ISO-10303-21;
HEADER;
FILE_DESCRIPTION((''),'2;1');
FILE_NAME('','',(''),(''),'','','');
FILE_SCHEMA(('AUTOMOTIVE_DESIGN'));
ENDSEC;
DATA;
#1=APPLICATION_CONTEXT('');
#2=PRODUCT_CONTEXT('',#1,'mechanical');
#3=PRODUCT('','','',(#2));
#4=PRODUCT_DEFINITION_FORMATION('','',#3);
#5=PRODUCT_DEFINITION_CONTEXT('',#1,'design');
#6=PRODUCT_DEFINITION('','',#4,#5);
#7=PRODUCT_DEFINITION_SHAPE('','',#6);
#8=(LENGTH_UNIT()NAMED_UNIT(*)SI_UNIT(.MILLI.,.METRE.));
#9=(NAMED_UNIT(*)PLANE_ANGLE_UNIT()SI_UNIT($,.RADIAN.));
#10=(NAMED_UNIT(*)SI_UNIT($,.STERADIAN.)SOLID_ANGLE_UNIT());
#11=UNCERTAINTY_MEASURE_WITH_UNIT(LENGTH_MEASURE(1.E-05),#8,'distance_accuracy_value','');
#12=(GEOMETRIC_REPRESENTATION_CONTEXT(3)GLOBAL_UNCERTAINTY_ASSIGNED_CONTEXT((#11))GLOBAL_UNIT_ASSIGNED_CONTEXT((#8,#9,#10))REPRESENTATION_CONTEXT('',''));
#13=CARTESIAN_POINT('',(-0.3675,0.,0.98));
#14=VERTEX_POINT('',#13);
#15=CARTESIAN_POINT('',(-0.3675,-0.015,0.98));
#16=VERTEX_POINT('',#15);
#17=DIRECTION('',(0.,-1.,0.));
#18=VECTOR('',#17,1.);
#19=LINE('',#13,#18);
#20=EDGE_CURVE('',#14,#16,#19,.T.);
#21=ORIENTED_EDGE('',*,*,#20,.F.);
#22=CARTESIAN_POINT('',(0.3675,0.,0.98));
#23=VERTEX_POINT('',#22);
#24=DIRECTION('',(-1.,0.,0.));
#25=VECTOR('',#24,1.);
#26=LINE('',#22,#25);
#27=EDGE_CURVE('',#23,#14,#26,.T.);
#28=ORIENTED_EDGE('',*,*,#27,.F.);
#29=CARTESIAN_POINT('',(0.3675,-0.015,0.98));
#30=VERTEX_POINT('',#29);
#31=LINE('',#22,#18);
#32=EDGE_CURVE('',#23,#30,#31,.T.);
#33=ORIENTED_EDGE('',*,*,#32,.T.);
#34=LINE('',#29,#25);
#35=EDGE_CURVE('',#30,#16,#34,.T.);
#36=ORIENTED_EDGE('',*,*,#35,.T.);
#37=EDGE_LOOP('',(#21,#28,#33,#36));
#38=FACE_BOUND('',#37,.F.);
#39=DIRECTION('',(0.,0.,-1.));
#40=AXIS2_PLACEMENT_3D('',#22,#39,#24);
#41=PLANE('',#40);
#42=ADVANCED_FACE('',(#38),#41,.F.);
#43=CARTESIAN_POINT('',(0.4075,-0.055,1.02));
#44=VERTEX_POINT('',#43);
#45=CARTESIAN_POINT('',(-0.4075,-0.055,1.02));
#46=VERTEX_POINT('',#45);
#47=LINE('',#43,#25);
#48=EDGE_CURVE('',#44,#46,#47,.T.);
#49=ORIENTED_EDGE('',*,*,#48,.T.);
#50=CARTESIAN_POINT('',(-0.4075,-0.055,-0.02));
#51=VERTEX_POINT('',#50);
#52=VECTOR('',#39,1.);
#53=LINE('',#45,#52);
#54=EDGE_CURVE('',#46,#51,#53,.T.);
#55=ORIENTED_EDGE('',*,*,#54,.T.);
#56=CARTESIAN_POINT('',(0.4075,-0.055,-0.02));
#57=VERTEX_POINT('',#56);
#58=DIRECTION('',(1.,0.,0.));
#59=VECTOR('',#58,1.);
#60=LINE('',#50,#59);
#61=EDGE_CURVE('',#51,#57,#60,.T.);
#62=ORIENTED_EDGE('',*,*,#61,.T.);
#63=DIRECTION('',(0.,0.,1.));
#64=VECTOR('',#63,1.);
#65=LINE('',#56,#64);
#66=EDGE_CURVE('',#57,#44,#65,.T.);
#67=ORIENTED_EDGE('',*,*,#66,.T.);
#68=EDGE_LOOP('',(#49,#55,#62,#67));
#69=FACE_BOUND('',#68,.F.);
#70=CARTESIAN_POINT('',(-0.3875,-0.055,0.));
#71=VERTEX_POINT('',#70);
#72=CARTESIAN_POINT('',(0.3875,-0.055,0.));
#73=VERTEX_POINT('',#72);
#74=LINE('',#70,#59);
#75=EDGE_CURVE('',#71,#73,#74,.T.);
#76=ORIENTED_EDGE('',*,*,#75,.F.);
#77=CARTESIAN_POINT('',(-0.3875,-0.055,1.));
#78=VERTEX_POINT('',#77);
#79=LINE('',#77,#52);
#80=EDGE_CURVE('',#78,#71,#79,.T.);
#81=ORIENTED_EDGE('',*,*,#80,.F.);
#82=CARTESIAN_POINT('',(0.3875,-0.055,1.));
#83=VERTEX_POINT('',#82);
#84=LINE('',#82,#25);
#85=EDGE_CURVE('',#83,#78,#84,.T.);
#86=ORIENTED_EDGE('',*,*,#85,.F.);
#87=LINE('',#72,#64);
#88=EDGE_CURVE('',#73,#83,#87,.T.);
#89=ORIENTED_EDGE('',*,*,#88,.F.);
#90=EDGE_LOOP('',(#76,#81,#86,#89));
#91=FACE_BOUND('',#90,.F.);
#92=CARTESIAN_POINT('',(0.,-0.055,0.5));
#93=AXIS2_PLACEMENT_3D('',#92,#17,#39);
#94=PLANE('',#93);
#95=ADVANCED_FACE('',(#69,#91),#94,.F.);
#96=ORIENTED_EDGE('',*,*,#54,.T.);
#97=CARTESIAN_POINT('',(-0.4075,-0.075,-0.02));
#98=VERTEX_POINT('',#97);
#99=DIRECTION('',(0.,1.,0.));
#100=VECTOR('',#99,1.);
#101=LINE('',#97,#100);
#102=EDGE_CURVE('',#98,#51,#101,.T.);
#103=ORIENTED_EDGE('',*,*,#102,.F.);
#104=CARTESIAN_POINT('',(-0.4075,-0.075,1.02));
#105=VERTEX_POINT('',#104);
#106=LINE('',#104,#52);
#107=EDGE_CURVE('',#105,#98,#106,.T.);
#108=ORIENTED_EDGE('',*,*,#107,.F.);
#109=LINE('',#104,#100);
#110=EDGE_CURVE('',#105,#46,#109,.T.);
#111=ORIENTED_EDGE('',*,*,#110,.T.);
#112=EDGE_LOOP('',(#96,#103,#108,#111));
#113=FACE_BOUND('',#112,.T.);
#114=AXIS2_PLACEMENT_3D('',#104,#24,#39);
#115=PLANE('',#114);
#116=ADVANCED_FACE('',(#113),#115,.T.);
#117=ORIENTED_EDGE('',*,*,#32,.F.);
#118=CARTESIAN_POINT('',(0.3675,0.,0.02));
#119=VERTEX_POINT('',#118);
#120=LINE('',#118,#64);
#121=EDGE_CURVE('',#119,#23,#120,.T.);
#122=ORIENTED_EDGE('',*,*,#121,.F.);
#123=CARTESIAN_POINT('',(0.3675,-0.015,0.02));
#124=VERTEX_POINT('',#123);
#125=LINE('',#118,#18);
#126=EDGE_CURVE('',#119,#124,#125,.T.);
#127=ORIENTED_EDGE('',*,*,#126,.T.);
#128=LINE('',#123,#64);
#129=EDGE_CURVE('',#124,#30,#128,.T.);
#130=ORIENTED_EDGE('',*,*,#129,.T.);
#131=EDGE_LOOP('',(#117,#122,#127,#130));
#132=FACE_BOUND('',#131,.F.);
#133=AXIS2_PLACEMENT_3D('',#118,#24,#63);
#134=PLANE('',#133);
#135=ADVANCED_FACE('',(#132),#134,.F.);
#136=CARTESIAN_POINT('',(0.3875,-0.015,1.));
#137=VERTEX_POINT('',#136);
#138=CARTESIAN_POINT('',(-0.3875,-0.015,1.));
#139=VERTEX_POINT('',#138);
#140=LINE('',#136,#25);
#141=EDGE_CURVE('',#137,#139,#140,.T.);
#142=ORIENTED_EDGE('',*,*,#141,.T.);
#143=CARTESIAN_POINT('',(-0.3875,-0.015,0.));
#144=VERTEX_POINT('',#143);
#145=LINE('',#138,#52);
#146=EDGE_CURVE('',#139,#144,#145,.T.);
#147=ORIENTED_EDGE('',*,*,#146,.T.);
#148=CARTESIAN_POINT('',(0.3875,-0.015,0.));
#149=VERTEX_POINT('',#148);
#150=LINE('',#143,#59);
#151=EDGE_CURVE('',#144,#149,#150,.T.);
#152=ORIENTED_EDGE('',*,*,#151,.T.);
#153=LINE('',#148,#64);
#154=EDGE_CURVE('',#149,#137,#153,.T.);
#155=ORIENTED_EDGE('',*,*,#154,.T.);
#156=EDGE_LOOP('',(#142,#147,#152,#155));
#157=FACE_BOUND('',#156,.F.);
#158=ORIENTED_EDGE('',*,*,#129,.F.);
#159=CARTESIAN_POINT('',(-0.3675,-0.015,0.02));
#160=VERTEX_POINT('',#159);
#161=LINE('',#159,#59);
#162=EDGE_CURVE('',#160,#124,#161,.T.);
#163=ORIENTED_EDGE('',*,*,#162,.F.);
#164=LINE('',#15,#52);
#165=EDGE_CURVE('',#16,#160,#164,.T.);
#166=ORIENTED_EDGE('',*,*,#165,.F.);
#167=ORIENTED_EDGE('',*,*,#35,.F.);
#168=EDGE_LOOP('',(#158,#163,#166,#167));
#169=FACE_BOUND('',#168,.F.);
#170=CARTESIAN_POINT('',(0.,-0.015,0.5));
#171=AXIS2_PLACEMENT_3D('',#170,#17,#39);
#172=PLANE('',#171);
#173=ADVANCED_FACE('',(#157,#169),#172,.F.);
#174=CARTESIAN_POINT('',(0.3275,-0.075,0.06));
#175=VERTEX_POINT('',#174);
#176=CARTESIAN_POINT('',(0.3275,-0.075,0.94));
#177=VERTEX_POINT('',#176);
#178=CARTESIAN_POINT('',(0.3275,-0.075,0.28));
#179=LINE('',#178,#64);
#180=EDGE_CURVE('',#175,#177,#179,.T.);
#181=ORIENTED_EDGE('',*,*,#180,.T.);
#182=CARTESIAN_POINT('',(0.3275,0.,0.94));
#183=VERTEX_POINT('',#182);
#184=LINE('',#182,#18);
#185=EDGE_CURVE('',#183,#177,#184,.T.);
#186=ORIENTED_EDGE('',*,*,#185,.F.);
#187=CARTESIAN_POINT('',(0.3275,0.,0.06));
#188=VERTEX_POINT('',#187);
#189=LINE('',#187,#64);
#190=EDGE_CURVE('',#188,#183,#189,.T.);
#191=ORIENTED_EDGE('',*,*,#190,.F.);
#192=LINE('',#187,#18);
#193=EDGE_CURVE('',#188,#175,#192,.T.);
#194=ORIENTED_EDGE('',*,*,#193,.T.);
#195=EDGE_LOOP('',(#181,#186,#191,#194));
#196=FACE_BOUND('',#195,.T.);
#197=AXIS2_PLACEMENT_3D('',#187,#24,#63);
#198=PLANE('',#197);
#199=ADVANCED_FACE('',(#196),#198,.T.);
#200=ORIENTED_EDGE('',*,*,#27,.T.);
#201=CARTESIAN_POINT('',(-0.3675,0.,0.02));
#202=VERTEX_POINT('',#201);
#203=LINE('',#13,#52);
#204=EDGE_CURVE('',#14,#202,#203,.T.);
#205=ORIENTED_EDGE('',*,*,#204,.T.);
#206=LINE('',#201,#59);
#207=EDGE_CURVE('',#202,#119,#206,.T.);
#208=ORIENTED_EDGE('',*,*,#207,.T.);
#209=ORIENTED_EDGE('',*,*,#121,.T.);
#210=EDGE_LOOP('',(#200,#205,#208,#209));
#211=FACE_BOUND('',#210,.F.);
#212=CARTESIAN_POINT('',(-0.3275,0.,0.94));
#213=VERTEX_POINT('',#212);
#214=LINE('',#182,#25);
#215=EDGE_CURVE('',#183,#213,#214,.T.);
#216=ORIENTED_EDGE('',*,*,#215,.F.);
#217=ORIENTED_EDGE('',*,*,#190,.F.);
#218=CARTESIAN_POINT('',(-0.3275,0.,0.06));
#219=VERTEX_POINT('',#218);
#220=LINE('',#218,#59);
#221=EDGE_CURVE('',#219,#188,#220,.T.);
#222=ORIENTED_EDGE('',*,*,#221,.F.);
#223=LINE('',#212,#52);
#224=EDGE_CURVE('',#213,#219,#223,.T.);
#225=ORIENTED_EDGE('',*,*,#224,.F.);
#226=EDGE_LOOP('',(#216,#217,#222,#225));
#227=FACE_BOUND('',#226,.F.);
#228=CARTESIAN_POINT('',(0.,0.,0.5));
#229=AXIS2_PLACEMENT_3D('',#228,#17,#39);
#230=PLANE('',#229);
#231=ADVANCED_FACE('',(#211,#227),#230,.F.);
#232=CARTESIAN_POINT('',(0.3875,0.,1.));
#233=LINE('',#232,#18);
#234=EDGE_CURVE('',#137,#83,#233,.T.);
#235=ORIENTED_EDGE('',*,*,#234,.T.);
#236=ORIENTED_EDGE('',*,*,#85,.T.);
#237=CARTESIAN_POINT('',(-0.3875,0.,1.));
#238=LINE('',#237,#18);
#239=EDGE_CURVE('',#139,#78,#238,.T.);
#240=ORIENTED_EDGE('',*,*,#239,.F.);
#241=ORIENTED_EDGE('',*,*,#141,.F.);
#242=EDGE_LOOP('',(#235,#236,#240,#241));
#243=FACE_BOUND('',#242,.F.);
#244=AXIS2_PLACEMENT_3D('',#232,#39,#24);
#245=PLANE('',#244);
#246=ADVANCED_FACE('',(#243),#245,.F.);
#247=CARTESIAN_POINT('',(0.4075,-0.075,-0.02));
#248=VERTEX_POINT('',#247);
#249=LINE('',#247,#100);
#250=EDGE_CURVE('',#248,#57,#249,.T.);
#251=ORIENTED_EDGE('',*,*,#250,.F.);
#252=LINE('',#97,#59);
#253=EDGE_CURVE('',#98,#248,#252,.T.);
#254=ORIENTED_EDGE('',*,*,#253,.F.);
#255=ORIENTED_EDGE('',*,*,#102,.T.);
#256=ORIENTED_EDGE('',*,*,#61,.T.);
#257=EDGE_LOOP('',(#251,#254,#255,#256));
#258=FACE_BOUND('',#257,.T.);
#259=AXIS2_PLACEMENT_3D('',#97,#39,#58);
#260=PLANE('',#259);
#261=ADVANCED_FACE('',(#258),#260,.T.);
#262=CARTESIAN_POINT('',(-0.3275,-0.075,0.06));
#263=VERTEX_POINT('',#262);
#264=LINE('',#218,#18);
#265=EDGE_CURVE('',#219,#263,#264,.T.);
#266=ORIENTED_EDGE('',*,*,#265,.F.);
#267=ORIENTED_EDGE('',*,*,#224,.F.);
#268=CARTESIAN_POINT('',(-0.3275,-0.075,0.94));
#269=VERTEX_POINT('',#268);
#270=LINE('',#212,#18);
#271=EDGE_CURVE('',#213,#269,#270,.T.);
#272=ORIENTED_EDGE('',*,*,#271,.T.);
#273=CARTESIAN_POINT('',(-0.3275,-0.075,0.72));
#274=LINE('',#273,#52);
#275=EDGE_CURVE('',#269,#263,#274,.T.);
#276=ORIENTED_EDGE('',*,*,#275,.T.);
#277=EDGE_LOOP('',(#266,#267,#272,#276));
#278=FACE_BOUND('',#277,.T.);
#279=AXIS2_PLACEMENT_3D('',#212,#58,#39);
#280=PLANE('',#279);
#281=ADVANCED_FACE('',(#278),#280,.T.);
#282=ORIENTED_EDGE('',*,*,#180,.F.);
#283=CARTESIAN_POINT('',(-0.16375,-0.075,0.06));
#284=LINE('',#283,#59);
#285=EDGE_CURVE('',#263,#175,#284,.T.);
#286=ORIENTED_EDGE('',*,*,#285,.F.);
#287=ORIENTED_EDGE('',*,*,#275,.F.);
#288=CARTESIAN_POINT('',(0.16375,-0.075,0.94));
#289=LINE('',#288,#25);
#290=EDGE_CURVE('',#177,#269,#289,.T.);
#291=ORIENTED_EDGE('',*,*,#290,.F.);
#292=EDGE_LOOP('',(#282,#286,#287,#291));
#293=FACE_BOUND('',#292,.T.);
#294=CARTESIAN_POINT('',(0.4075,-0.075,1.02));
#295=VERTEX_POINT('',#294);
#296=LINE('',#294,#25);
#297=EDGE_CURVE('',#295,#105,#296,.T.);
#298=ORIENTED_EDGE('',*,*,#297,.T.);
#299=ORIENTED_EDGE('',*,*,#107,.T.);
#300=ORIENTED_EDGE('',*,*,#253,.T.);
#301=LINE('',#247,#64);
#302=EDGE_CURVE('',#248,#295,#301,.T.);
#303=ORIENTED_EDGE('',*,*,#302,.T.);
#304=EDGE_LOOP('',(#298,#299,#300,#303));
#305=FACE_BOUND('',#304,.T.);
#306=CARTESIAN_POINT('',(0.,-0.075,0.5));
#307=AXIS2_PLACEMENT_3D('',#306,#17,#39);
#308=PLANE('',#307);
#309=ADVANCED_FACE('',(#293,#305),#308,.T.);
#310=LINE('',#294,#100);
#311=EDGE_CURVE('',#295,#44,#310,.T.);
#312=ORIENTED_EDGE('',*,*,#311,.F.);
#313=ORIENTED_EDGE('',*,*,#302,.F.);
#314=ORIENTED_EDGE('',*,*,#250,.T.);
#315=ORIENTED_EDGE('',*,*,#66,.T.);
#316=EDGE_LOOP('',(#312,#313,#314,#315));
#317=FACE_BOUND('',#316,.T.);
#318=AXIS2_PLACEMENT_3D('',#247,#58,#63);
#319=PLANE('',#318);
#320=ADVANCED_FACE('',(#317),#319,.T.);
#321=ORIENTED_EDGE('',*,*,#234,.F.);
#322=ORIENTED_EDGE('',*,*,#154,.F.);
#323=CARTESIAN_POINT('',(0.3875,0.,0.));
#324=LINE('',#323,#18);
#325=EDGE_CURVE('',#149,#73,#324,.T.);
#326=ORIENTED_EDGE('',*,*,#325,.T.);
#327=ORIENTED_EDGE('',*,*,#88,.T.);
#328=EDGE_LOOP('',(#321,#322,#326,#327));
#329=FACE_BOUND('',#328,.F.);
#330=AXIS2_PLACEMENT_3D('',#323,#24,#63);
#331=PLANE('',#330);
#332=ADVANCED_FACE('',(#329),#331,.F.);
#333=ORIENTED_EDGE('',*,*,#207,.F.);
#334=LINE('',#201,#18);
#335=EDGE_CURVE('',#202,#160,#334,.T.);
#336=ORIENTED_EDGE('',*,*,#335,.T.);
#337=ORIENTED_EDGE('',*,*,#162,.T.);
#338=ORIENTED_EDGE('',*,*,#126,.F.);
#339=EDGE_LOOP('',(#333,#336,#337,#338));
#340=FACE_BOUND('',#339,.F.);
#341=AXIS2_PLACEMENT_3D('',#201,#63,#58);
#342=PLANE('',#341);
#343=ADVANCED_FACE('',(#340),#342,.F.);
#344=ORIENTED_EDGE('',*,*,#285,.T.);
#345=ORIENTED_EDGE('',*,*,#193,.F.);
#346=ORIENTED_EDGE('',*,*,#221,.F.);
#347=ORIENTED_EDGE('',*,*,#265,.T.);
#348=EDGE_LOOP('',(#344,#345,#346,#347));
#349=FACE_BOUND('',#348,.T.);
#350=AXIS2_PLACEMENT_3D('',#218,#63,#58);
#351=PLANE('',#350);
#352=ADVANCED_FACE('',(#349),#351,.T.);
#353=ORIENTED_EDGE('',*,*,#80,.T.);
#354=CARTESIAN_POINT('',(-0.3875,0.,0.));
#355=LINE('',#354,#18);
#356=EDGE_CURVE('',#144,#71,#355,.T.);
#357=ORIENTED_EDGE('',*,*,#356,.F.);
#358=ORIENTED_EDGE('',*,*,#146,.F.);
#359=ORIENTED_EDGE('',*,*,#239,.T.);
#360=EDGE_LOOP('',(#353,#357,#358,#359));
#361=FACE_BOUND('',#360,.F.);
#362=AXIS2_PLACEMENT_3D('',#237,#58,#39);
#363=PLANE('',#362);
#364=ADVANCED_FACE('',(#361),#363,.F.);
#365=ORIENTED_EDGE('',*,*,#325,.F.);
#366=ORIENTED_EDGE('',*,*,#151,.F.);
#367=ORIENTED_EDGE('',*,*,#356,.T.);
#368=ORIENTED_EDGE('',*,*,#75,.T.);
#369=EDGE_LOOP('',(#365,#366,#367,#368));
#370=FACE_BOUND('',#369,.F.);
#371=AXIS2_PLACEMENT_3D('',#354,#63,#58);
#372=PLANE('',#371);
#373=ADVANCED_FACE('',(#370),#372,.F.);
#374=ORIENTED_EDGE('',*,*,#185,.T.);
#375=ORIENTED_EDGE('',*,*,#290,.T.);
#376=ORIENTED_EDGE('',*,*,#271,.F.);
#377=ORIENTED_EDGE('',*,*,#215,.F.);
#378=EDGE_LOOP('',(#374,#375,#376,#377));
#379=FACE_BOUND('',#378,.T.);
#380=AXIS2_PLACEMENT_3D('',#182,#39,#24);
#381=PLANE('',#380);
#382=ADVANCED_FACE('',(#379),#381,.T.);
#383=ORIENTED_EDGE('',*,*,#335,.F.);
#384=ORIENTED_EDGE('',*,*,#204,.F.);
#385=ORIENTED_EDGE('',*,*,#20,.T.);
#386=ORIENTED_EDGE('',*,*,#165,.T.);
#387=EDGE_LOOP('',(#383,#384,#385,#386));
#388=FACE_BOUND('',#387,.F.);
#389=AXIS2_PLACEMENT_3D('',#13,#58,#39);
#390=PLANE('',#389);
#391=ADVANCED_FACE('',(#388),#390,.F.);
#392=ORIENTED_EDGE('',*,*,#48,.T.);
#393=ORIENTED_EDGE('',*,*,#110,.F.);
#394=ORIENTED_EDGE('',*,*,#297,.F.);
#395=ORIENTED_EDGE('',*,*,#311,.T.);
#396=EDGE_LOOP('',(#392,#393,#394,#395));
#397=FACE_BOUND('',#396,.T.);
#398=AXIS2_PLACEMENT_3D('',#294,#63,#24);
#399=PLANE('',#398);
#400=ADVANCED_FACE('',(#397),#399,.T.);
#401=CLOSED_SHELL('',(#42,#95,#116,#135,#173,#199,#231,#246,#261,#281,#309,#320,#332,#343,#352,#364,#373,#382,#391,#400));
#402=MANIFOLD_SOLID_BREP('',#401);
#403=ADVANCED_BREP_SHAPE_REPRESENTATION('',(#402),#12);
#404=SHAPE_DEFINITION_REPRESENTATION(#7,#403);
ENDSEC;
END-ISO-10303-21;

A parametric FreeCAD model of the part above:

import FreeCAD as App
import Part
import Sketcher

V = App.Vector


def add_polygon(sketch, points):
    """Adds a closed chain of lines whose ends are joined by coincident constraints."""
    first, n = sketch.GeometryCount, len(points)
    for a, b in zip(points, points[1:] + points[:1]):
        sketch.addGeometry(Part.LineSegment(App.Vector(*a, 0), App.Vector(*b, 0)), False)
    for i in range(n):
        sketch.addConstraint(Sketcher.Constraint("Coincident", first + i, 2, first + (i + 1) % n, 1))

doc = App.newDocument("Part")
params = doc.addObject("Spreadsheet::Sheet", "Params")
for row, (alias, value) in enumerate([
    ("sketch1_height", "1 mm"),
    ("pad1_length", "0.075 mm"),
    ("sketch2_height", "0.88 mm"),
    ("sketch3_height", "1 mm"),
    ("sketch3_height2", "0.96 mm"),
    ("pocket2_length", "0.015 mm"),
    ("sketch4_height", "1 mm"),
    ("sketch4_height2", "1.04 mm"),
    ("pad2_length", "0.02 mm"),
], start=1):
    params.set(f"A{row}", alias)
    params.set(f"B{row}", "=" + value)
    params.setAlias(f"B{row}", alias)

body = doc.addObject("PartDesign::Body", "Body")

# Sketch on XZ plane
sketch1 = doc.addObject("Sketcher::SketchObject", "Sketch")
body.addObject(sketch1)
sketch1.AttachmentSupport = (doc.XZ_Plane, [""])
sketch1.MapMode = "FlatFace"
add_polygon(sketch1, [(-0.4, 1), (-0.4, 0), (0.4, 0), (0.4, 1)])  # lines 0-3
sketch1.addConstraint([
    Sketcher.Constraint("Vertical", 0),
    Sketcher.Constraint("Horizontal", 1),
    Sketcher.Constraint("Vertical", 2),
    Sketcher.Constraint("Horizontal", 3),
    Sketcher.Constraint("Symmetric", 0, 2, 1, 2, -1, 1),
    Sketcher.Constraint("DistanceY", 0, 2, 0, 1, 1.0),
    Sketcher.Constraint("DistanceX", 0, 2, -1, 1, 0.3875),
])
sketch1.setExpression("Constraints[9]", "Params.sketch1_height")
pad1 = doc.addObject("PartDesign::Pad", "Pad")
body.addObject(pad1)
pad1.Profile = sketch1
pad1.setExpression("Length", "Params.pad1_length")

# Sketch on XZ plane
sketch2 = doc.addObject("Sketcher::SketchObject", "Sketch001")
body.addObject(sketch2)
sketch2.AttachmentSupport = (doc.XZ_Plane, [""])
sketch2.MapMode = "FlatFace"
add_polygon(sketch2, [(-0.3, 0.9), (0.3, 0.9), (0.3, 0.1), (-0.3, 0.1)])  # lines 0-3
sketch2.addConstraint([
    Sketcher.Constraint("Horizontal", 0),
    Sketcher.Constraint("Vertical", 1),
    Sketcher.Constraint("Horizontal", 2),
    Sketcher.Constraint("Vertical", 3),
    Sketcher.Constraint("DistanceY", 1, 2, 1, 1, 0.88),
    Sketcher.Constraint("DistanceX", 0, 1, 0, 2, 0.655),
    Sketcher.Constraint("DistanceY", -1, 1, 0, 2, 0.94),
    Sketcher.Constraint("DistanceX", -1, 1, 0, 2, 0.3275),
])
sketch2.setExpression("Constraints[8]", "Params.sketch2_height")
pocket1 = doc.addObject("PartDesign::Pocket", "Pocket")
body.addObject(pocket1)
pocket1.Profile = sketch2
pocket1.Type = "UpToFirst"
pocket1.Reversed = True

# Sketch on XZ plane
sketch3 = doc.addObject("Sketcher::SketchObject", "Sketch002")
body.addObject(sketch3)
sketch3.AttachmentSupport = (doc.XZ_Plane, [""])
sketch3.MapMode = "FlatFace"
add_polygon(sketch3, [(0.4, 1), (0.4, 0), (-0.4, 0), (-0.4, 1)])  # lines 0-3
add_polygon(sketch3, [(-0.4, 0), (0.4, 0), (0.4, 1), (-0.4, 1)])  # lines 4-7
sketch3.addConstraint([
    Sketcher.Constraint("Vertical", 0),
    Sketcher.Constraint("Horizontal", 1),
    Sketcher.Constraint("Vertical", 2),
    Sketcher.Constraint("Horizontal", 3),
    Sketcher.Constraint("Horizontal", 4),
    Sketcher.Constraint("Vertical", 5),
    Sketcher.Constraint("Horizontal", 6),
    Sketcher.Constraint("Vertical", 7),
    Sketcher.Constraint("Symmetric", 0, 2, 1, 2, -1, 1),
    Sketcher.Constraint("DistanceY", 0, 2, 0, 1, 1.0),
    Sketcher.Constraint("DistanceY", 5, 1, 5, 2, 0.96),
    Sketcher.Constraint("DistanceX", 1, 2, 1, 1, 0.775),
    Sketcher.Constraint("DistanceX", 4, 1, 4, 2, 0.735),
    Sketcher.Constraint("DistanceY", -1, 1, 4, 2, 0.02),
    Sketcher.Constraint("DistanceX", 4, 2, 0, 2, 0.02),
])
sketch3.setExpression("Constraints[17]", "Params.sketch3_height")
sketch3.setExpression("Constraints[18]", "Params.sketch3_height2")
pocket2 = doc.addObject("PartDesign::Pocket", "Pocket001")
body.addObject(pocket2)
pocket2.Profile = sketch3
pocket2.setExpression("Length", "Params.pocket2_length")
pocket2.Reversed = True

# Sketch on XZ plane
sketch4 = doc.addObject("Sketcher::SketchObject", "Sketch003")
body.addObject(sketch4)
sketch4.AttachmentSupport = (doc.XZ_Plane, [""])
sketch4.MapMode = "FlatFace"
sketch4.AttachmentOffset = App.Placement(V(0, 0, 0.075), App.Rotation())
add_polygon(sketch4, [(0.4, 1), (-0.4, 1), (-0.4, 0), (0.4, 0)])  # lines 0-3
add_polygon(sketch4, [(-0.4, 1), (0.4, 1), (0.4, 0), (-0.4, 0)])  # lines 4-7
sketch4.addConstraint([
    Sketcher.Constraint("Horizontal", 0),
    Sketcher.Constraint("Vertical", 1),
    Sketcher.Constraint("Horizontal", 2),
    Sketcher.Constraint("Vertical", 3),
    Sketcher.Constraint("Horizontal", 4),
    Sketcher.Constraint("Vertical", 5),
    Sketcher.Constraint("Horizontal", 6),
    Sketcher.Constraint("Vertical", 7),
    Sketcher.Constraint("Symmetric", 5, 2, 6, 2, -1, 1),
    Sketcher.Constraint("DistanceY", 5, 2, 5, 1, 1.0),
    Sketcher.Constraint("DistanceY", 1, 2, 1, 1, 1.04),
    Sketcher.Constraint("DistanceX", 0, 2, 0, 1, 0.815),
    Sketcher.Constraint("DistanceX", 4, 1, 4, 2, 0.775),
    Sketcher.Constraint("DistanceY", -1, 1, 0, 2, 1.02),
    Sketcher.Constraint("DistanceX", 4, 2, 3, 2, 0.02),
])
sketch4.setExpression("Constraints[17]", "Params.sketch4_height")
sketch4.setExpression("Constraints[18]", "Params.sketch4_height2")
pad2 = doc.addObject("PartDesign::Pad", "Pad001")
body.addObject(pad2)
pad2.Profile = sketch4
pad2.setExpression("Length", "Params.pad2_length")
pad2.Reversed = True

doc.recompute()
